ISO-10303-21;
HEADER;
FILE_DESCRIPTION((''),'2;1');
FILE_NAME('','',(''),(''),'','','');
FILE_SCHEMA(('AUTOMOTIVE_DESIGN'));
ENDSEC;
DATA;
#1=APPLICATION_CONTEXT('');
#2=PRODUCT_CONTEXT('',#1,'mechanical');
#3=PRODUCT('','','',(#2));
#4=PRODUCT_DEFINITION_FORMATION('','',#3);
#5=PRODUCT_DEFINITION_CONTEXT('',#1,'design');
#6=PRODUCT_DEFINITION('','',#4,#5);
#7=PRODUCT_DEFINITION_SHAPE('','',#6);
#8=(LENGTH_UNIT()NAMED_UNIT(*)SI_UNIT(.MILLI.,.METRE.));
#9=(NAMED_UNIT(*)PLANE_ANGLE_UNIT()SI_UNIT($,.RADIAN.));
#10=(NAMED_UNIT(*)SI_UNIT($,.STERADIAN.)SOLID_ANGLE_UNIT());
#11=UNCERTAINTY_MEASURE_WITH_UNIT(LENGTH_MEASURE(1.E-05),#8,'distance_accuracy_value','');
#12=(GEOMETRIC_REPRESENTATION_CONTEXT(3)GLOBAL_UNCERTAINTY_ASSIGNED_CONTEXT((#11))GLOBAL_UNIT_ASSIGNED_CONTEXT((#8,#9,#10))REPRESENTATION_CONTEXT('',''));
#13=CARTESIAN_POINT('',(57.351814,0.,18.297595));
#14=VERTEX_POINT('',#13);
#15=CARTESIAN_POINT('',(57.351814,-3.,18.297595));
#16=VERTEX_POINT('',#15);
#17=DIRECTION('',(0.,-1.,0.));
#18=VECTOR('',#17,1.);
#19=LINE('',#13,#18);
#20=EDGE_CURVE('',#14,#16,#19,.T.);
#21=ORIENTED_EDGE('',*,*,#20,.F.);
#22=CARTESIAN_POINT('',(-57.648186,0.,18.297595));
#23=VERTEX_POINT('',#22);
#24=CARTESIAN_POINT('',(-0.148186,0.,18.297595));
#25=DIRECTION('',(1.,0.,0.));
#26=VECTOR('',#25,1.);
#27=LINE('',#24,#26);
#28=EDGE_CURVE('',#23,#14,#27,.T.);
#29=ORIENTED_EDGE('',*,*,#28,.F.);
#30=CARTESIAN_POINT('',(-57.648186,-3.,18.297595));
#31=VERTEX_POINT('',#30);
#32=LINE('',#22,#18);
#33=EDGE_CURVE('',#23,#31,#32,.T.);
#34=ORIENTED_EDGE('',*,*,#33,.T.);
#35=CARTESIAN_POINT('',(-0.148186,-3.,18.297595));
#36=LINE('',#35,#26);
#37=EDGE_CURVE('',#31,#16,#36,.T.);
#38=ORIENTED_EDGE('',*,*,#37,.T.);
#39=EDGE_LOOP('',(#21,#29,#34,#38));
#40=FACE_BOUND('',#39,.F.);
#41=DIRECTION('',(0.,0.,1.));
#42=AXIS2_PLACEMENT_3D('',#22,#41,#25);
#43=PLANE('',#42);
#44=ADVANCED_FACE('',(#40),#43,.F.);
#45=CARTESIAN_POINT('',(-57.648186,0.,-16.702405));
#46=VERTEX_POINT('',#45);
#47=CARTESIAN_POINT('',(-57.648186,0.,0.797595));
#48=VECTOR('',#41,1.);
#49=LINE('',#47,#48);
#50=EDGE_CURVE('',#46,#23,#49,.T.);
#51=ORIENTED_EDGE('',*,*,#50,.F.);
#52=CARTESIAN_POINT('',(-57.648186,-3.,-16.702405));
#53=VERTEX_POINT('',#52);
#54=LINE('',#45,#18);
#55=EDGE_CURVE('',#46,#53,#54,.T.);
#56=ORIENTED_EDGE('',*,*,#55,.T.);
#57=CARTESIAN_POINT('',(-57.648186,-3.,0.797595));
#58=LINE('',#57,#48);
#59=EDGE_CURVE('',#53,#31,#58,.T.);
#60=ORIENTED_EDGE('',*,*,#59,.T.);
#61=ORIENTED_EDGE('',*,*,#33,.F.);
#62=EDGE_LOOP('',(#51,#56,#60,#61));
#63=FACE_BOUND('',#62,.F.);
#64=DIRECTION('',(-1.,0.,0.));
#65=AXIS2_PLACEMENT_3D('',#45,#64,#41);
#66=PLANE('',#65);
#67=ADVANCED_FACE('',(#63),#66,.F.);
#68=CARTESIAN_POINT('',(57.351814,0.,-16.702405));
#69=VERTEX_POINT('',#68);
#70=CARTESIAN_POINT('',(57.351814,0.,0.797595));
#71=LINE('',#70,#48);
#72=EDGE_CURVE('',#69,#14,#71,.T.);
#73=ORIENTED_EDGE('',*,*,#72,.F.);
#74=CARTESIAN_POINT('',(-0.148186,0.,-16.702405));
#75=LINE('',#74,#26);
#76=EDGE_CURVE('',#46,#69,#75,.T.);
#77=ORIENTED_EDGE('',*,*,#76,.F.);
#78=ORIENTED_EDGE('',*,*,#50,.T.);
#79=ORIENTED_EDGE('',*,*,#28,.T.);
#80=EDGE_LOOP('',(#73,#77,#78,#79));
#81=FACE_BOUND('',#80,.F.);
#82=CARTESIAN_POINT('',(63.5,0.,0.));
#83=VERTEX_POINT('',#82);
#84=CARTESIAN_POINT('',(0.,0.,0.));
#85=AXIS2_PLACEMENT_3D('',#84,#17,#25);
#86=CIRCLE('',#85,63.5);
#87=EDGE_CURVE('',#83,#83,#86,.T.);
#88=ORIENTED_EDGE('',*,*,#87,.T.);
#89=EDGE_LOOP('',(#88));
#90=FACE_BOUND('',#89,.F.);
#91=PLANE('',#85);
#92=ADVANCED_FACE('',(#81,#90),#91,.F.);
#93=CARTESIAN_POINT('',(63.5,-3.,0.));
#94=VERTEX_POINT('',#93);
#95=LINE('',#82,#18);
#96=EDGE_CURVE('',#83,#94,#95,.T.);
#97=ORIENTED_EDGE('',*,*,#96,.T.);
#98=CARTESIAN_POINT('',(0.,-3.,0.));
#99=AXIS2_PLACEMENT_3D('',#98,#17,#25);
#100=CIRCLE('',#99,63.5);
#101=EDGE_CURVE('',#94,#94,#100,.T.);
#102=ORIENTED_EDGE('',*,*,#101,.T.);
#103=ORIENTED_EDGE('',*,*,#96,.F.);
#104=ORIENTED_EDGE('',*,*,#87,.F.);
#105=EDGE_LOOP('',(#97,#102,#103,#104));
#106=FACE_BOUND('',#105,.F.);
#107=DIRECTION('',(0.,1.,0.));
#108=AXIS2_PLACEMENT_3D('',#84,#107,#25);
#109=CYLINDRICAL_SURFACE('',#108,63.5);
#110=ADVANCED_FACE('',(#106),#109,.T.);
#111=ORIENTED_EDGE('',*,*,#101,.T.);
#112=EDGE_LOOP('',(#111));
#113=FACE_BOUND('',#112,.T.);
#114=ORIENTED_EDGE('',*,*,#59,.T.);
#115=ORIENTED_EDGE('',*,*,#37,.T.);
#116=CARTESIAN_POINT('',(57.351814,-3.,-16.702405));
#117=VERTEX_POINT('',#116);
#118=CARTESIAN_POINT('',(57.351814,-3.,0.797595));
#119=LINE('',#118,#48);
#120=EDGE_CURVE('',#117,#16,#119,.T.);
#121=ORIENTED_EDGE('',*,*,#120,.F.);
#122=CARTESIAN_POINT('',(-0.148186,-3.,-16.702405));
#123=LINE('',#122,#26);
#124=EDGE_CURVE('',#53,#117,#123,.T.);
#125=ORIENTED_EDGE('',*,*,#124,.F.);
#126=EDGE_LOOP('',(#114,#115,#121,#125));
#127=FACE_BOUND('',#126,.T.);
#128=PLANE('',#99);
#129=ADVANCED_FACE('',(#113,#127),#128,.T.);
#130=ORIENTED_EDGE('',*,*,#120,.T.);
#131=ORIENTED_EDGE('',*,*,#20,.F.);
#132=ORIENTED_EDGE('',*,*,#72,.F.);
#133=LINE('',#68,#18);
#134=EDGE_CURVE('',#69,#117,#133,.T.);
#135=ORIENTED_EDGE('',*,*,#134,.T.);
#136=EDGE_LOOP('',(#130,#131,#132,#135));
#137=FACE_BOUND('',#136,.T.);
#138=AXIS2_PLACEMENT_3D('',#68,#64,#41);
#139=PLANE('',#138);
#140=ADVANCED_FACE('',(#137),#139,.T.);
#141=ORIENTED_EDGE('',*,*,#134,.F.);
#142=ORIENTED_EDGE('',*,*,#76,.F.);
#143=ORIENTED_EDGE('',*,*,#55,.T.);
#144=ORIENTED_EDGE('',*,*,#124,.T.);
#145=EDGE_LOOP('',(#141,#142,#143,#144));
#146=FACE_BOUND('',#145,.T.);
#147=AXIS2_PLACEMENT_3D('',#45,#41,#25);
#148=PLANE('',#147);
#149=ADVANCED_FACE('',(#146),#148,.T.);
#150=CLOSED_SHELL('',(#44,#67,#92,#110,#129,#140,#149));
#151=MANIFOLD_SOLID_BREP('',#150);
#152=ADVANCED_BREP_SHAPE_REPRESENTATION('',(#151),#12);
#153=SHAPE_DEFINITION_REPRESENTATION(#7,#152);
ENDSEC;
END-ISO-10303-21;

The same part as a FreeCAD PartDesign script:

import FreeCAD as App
import Part
import Sketcher

V = App.Vector
Q = App.Units.Quantity

doc = App.newDocument("Part")
body = doc.addObject("PartDesign::Body", "Body")

# Sketch on XZ plane
sketch1 = body.newObject("Sketcher::SketchObject", "Sketch")
sketch1.AttachmentSupport = (doc.getObject("XZ_Plane"), [""])
sketch1.MapMode = "FlatFace"
sketch1.addGeometry(Part.Circle(V(0, 0, 0), V(0, 0, 1), 64), False)
sketch1.addConstraint([
    Sketcher.Constraint("Coincident", 0, 3, -1, 1),
    Sketcher.Constraint("Diameter", 0, Q("127 mm")),
])
pad1 = body.newObject("PartDesign::Pad", "Pad")
pad1.Profile = sketch1
pad1.Length = 3

# Sketch on XZ plane
sketch2 = body.newObject("Sketcher::SketchObject", "Sketch001")
sketch2.AttachmentSupport = (doc.getObject("XZ_Plane"), [""])
sketch2.MapMode = "FlatFace"
sketch2.addGeometry([
    Part.LineSegment(V(-58, 18, 0), V(-58, -17, 0)),
    Part.LineSegment(V(-58, -17, 0), V(57, -17, 0)),
    Part.LineSegment(V(57, -17, 0), V(57, 18, 0)),
    Part.LineSegment(V(57, 18, 0), V(-58, 18, 0)),
], False)
sketch2.addConstraint([
    Sketcher.Constraint("Coincident", 0, 2, 1, 1),
    Sketcher.Constraint("Coincident", 1, 2, 2, 1),
    Sketcher.Constraint("Coincident", 2, 2, 3, 1),
    Sketcher.Constraint("Coincident", 3, 2, 0, 1),
    Sketcher.Constraint("Vertical", 0),
    Sketcher.Constraint("Horizontal", 1),
    Sketcher.Constraint("Vertical", 2),
    Sketcher.Constraint("Horizontal", 3),
    Sketcher.Constraint("DistanceX", 1, 1, 1, 2, Q("115 mm")),
    Sketcher.Constraint("DistanceY", 0, 2, 0, 1, Q("35 mm")),
    Sketcher.Constraint("DistanceX", 0, 2, -1, 1, Q("57.648186 mm")),
    Sketcher.Constraint("DistanceY", 0, 2, -1, 1, Q("16.702405 mm")),
])
pocket1 = body.newObject("PartDesign::Pocket", "Pocket")
pocket1.Profile = sketch2
pocket1.Length = 3
pocket1.Reversed = True

doc.recompute()
